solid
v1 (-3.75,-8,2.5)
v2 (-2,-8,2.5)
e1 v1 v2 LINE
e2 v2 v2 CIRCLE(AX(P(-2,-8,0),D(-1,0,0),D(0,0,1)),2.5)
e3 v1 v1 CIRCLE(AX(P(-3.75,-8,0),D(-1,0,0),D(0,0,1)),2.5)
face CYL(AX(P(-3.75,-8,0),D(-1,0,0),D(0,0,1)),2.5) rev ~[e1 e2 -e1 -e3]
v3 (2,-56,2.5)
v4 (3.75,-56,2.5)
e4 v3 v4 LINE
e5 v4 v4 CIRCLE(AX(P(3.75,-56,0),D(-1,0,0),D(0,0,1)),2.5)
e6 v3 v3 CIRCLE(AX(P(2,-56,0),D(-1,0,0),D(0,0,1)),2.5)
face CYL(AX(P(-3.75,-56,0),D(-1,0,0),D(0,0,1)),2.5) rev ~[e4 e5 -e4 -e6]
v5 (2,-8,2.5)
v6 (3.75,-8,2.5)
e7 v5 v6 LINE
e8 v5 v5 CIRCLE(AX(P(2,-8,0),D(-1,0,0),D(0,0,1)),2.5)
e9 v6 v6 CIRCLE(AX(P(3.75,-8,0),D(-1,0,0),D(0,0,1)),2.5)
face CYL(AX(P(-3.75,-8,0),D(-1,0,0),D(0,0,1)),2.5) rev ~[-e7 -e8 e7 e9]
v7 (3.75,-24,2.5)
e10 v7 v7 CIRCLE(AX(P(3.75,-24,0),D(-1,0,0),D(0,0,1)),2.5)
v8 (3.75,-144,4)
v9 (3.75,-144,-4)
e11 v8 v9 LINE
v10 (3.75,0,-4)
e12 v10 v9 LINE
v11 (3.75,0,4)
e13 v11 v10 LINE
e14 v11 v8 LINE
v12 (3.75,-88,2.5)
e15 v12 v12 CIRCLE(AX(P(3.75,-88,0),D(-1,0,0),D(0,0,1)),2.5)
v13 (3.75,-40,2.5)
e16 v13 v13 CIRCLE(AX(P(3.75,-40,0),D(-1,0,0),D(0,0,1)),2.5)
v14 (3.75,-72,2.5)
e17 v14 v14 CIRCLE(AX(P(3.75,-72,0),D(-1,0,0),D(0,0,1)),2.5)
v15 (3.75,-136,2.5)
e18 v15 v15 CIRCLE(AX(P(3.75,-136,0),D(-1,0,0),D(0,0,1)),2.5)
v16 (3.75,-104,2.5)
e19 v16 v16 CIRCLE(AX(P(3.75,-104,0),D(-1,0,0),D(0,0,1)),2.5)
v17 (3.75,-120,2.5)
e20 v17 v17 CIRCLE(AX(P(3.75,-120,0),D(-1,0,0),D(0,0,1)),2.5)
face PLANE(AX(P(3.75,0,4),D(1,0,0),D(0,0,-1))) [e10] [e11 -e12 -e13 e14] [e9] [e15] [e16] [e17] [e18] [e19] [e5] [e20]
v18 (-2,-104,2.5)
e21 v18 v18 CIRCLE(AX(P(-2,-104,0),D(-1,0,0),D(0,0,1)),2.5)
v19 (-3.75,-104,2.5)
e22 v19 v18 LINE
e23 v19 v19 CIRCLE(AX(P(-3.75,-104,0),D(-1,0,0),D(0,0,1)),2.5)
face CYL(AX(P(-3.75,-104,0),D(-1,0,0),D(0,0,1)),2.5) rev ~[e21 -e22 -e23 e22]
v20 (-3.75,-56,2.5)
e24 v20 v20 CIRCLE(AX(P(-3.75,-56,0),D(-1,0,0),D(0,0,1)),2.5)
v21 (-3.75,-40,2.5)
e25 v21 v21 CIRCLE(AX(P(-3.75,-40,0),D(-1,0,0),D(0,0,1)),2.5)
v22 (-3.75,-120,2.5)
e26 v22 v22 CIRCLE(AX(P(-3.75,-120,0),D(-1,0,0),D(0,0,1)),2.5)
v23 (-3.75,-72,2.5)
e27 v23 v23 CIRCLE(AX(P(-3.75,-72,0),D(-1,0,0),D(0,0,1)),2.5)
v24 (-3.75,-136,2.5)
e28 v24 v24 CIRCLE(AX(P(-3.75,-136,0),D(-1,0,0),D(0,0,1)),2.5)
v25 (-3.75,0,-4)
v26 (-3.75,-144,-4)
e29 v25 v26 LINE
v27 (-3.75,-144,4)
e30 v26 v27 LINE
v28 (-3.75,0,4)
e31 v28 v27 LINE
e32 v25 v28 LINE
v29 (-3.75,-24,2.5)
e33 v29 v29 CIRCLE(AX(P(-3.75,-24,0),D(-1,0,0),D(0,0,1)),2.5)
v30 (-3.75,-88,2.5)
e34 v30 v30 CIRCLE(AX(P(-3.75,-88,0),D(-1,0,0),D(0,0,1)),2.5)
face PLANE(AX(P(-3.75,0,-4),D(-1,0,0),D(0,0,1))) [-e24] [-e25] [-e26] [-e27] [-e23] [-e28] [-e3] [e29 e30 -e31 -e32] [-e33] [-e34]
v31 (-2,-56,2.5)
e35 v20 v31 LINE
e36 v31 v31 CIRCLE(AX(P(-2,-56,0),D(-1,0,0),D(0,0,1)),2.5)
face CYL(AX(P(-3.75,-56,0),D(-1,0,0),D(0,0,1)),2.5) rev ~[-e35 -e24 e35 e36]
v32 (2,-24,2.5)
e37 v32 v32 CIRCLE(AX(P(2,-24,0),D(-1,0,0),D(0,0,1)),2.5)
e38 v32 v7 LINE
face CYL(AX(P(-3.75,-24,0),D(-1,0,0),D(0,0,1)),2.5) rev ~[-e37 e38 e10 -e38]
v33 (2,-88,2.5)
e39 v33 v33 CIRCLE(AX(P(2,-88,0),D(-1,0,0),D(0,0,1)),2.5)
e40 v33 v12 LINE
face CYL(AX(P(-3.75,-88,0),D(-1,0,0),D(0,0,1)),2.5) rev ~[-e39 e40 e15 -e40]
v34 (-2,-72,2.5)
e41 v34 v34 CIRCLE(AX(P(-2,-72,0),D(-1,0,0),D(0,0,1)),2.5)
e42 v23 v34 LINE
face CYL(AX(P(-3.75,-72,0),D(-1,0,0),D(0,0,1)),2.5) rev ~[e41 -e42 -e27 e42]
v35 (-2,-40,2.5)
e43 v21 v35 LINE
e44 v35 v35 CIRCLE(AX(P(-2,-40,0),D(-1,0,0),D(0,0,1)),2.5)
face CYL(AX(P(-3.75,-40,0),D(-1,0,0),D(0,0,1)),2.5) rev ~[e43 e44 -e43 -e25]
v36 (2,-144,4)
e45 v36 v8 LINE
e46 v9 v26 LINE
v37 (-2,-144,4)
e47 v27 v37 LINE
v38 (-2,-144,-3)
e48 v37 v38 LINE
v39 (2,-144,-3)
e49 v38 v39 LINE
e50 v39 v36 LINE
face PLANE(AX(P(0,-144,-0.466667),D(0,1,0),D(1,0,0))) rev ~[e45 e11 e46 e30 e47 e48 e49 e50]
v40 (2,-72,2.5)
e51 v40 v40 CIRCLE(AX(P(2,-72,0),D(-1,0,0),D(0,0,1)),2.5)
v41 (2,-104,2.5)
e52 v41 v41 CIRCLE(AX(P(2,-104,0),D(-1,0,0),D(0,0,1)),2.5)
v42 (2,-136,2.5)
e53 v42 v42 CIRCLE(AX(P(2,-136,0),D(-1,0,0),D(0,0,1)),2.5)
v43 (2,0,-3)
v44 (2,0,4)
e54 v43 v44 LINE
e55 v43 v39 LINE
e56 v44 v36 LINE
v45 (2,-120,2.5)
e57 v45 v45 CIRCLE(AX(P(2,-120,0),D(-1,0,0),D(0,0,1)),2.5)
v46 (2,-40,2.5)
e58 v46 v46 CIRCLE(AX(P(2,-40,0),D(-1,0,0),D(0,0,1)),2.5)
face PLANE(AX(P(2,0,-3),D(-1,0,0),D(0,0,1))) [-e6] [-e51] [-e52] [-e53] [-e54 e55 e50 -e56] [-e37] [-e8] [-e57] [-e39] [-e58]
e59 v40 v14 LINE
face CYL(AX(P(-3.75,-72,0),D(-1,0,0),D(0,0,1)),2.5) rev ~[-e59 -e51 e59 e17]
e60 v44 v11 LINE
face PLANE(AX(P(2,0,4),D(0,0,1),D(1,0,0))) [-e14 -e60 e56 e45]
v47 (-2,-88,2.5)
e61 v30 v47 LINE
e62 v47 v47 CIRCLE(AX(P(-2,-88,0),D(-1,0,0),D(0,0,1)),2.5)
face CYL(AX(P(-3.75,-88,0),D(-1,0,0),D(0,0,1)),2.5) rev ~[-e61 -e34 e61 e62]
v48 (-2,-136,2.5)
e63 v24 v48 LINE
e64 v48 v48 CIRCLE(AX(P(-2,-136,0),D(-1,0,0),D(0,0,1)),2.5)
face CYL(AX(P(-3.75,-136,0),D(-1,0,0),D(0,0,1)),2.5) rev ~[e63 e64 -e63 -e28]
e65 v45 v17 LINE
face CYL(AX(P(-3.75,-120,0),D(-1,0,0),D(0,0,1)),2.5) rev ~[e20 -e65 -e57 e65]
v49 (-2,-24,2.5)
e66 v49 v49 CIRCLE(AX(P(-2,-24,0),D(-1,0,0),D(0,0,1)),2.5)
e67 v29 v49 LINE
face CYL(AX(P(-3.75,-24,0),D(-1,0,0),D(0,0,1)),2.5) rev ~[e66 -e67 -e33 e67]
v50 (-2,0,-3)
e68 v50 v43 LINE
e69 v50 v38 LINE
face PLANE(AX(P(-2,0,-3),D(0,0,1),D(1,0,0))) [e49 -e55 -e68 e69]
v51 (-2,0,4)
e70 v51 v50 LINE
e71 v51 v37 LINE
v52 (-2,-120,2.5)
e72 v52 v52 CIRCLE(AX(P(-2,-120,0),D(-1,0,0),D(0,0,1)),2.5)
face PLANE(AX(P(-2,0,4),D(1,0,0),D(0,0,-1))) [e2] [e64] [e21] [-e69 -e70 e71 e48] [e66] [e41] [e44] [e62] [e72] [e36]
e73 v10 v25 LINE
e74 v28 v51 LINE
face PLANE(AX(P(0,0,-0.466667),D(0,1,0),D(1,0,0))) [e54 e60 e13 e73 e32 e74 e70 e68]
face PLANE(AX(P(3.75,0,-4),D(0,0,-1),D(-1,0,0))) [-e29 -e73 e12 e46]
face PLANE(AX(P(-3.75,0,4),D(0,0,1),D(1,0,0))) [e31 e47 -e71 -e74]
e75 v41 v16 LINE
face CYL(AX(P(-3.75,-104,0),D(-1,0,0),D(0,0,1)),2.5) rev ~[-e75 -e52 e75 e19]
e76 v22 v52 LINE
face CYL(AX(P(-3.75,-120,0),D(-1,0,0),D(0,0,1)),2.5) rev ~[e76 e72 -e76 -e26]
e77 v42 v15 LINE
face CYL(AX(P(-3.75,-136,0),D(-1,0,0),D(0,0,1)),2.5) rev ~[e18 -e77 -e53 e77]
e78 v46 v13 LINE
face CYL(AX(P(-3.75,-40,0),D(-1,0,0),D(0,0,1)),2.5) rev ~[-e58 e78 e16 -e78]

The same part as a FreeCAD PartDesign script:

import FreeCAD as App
import Part
import Sketcher
from FreeCAD import Vector
Q = App.Units.Quantity

doc = App.newDocument("Part")
body = doc.addObject("PartDesign::Body", "Body")

# Sketch on XZ plane
sketch1 = doc.addObject("Sketcher::SketchObject", "Sketch")
body.addObject(sketch1)
sketch1.AttachmentSupport = (doc.XZ_Plane, [""])
sketch1.MapMode = "FlatFace"
sketch1.addGeometry(Part.LineSegment(Vector(-2, 4, 0), Vector(-2, -3, 0)), False)
sketch1.addGeometry(Part.LineSegment(Vector(-2, -3, 0), Vector(2, -3, 0)), False)
sketch1.addGeometry(Part.LineSegment(Vector(2, -3, 0), Vector(2, 4, 0)), False)
sketch1.addGeometry(Part.LineSegment(Vector(2, 4, 0), Vector(3.8, 4, 0)), False)
sketch1.addGeometry(Part.LineSegment(Vector(3.8, 4, 0), Vector(3.8, -4, 0)), False)
sketch1.addGeometry(Part.LineSegment(Vector(3.8, -4, 0), Vector(-3.8, -4, 0)), False)
sketch1.addGeometry(Part.LineSegment(Vector(-3.8, -4, 0), Vector(-3.8, 4, 0)), False)
sketch1.addGeometry(Part.LineSegment(Vector(-3.8, 4, 0), Vector(-2, 4, 0)), False)
sketch1.addConstraint(Sketcher.Constraint("Coincident", 0, 2, 1, 1))
sketch1.addConstraint(Sketcher.Constraint("Coincident", 1, 2, 2, 1))
sketch1.addConstraint(Sketcher.Constraint("Coincident", 2, 2, 3, 1))
sketch1.addConstraint(Sketcher.Constraint("Coincident", 3, 2, 4, 1))
sketch1.addConstraint(Sketcher.Constraint("Coincident", 4, 2, 5, 1))
sketch1.addConstraint(Sketcher.Constraint("Coincident", 5, 2, 6, 1))
sketch1.addConstraint(Sketcher.Constraint("Coincident", 6, 2, 7, 1))
sketch1.addConstraint(Sketcher.Constraint("Coincident", 7, 2, 0, 1))
sketch1.addConstraint(Sketcher.Constraint("Vertical", 0))
sketch1.addConstraint(Sketcher.Constraint("Horizontal", 1))
sketch1.addConstraint(Sketcher.Constraint("Vertical", 2))
sketch1.addConstraint(Sketcher.Constraint("Horizontal", 3))
sketch1.addConstraint(Sketcher.Constraint("Vertical", 4))
sketch1.addConstraint(Sketcher.Constraint("Horizontal", 5))
sketch1.addConstraint(Sketcher.Constraint("Vertical", 6))
sketch1.addConstraint(Sketcher.Constraint("Horizontal", 7))
sketch1.addConstraint(Sketcher.Constraint("Symmetric", 3, 2, 5, 2, -1, 1))
sketch1.addConstraint(Sketcher.Constraint("Symmetric", 2, 2, 7, 2, -2))
sketch1.addConstraint(Sketcher.Constraint("DistanceX", 1, 1, 1, 2, Q("4 mm")))
sketch1.addConstraint(Sketcher.Constraint("DistanceY", 0, 2, 0, 1, Q("7 mm")))
sketch1.addConstraint(Sketcher.Constraint("DistanceY", 4, 2, 4, 1, Q("8 mm")))
sketch1.addConstraint(Sketcher.Constraint("DistanceX", 5, 2, 5, 1, Q("7.5 mm")))
pad1 = doc.addObject("PartDesign::Pad", "Pad")
body.addObject(pad1)
pad1.Profile = sketch1
pad1.Length = 144

# Sketch on YZ plane
sketch2 = doc.addObject("Sketcher::SketchObject", "Sketch001")
body.addObject(sketch2)
sketch2.AttachmentSupport = (doc.YZ_Plane, [""])
sketch2.MapMode = "FlatFace"
sketch2.AttachmentOffset = App.Placement(Vector(0, 0, -3.75), App.Rotation())
sketch2.addGeometry(Part.Circle(Vector(-8, 0, 0), Vector(0, 0, 1), 2.5), False)
sketch2.addGeometry(Part.Circle(Vector(-24, 0, 0), Vector(0, 0, 1), 2.5), False)
sketch2.addGeometry(Part.Circle(Vector(-40, 0, 0), Vector(0, 0, 1), 2.5), False)
sketch2.addGeometry(Part.Circle(Vector(-56, 0, 0), Vector(0, 0, 1), 2.5), False)
sketch2.addGeometry(Part.Circle(Vector(-72, 0, 0), Vector(0, 0, 1), 2.5), False)
sketch2.addGeometry(Part.Circle(Vector(-88, 0, 0), Vector(0, 0, 1), 2.5), False)
sketch2.addGeometry(Part.Circle(Vector(-104, 0, 0), Vector(0, 0, 1), 2.5), False)
sketch2.addGeometry(Part.Circle(Vector(-120, 0, 0), Vector(0, 0, 1), 2.5), False)
sketch2.addGeometry(Part.Circle(Vector(-136, 0, 0), Vector(0, 0, 1), 2.5), False)
sketch2.addConstraint(Sketcher.Constraint("Equal", 0, 1))
sketch2.addConstraint(Sketcher.Constraint("Equal", 1, 2))
sketch2.addConstraint(Sketcher.Constraint("Equal", 2, 3))
sketch2.addConstraint(Sketcher.Constraint("Equal", 3, 4))
sketch2.addConstraint(Sketcher.Constraint("Equal", 4, 5))
sketch2.addConstraint(Sketcher.Constraint("Equal", 5, 6))
sketch2.addConstraint(Sketcher.Constraint("Equal", 6, 7))
sketch2.addConstraint(Sketcher.Constraint("Equal", 7, 8))
sketch2.addConstraint(Sketcher.Constraint("PointOnObject", 0, 3, -1))
sketch2.addConstraint(Sketcher.Constraint("PointOnObject", 1, 3, -1))
sketch2.addConstraint(Sketcher.Constraint("PointOnObject", 2, 3, -1))
sketch2.addConstraint(Sketcher.Constraint("PointOnObject", 3, 3, -1))
sketch2.addConstraint(Sketcher.Constraint("PointOnObject", 4, 3, -1))
sketch2.addConstraint(Sketcher.Constraint("PointOnObject", 5, 3, -1))
sketch2.addConstraint(Sketcher.Constraint("PointOnObject", 6, 3, -1))
sketch2.addConstraint(Sketcher.Constraint("PointOnObject", 7, 3, -1))
sketch2.addConstraint(Sketcher.Constraint("PointOnObject", 8, 3, -1))
sketch2.addConstraint(Sketcher.Constraint("Diameter", 0, Q("5 mm")))
sketch2.addConstraint(Sketcher.Constraint("DistanceX", 0, 3, -1, 1, Q("8 mm")))
sketch2.addConstraint(Sketcher.Constraint("DistanceX", 1, 3, -1, 1, Q("24 mm")))
sketch2.addConstraint(Sketcher.Constraint("DistanceX", 2, 3, -1, 1, Q("40 mm")))
sketch2.addConstraint(Sketcher.Constraint("DistanceX", 3, 3, -1, 1, Q("56 mm")))
sketch2.addConstraint(Sketcher.Constraint("DistanceX", 4, 3, -1, 1, Q("72 mm")))
sketch2.addConstraint(Sketcher.Constraint("DistanceX", 5, 3, -1, 1, Q("88 mm")))
sketch2.addConstraint(Sketcher.Constraint("DistanceX", 6, 3, -1, 1, Q("104 mm")))
sketch2.addConstraint(Sketcher.Constraint("DistanceX", 7, 3, -1, 1, Q("120 mm")))
sketch2.addConstraint(Sketcher.Constraint("DistanceX", 8, 3, -1, 1, Q("136 mm")))
pocket1 = doc.addObject("PartDesign::Pocket", "Pocket")
body.addObject(pocket1)
pocket1.Profile = sketch2
pocket1.Type = "ThroughAll"
pocket1.Reversed = True

doc.recompute()
